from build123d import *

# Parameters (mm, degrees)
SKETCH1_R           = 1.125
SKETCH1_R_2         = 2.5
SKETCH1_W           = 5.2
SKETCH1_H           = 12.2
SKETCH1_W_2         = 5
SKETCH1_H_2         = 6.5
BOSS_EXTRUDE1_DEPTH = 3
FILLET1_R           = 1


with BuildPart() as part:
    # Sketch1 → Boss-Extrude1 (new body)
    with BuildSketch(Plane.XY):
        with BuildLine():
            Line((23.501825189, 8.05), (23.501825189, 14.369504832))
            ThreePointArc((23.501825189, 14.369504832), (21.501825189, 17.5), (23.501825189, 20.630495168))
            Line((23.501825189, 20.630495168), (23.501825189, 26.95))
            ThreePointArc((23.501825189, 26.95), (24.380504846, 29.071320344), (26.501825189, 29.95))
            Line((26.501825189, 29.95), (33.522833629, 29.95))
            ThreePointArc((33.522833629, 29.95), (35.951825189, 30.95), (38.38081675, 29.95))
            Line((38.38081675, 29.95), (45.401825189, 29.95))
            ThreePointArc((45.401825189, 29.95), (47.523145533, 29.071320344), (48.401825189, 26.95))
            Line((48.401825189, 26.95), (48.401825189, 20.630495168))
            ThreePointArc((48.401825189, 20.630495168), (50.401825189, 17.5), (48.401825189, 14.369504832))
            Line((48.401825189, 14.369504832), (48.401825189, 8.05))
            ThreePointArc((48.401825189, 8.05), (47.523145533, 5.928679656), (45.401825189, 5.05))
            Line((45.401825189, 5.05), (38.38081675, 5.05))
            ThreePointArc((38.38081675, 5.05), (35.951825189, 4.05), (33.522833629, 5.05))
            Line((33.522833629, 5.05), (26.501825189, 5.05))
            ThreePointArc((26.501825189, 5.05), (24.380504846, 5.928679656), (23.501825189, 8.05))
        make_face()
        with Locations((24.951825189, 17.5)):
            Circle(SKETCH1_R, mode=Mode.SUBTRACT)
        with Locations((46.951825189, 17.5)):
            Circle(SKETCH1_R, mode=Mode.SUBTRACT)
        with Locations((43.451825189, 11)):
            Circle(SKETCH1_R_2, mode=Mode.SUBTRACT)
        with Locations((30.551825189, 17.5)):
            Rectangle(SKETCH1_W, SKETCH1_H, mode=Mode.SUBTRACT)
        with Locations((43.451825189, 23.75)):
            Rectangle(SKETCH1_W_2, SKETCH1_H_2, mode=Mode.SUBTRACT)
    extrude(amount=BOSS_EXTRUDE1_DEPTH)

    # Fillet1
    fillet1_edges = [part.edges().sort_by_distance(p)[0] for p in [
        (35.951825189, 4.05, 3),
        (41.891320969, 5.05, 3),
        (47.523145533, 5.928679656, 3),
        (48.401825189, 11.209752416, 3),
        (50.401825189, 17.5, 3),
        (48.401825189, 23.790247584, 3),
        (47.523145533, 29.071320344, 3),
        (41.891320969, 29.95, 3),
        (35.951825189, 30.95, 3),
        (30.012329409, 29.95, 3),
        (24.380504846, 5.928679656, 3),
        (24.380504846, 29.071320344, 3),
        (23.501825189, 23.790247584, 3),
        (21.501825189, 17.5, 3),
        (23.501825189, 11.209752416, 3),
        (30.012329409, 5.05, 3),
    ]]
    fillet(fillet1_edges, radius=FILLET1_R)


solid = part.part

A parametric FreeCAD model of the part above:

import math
import FreeCAD as App
import Part
import Sketcher

V = App.Vector


def edges_at(feature, points):
    """Names of the edges that pass closest to the given points."""
    edges = feature.Shape.Edges
    near = lambda p: min(range(len(edges)), key=lambda i: edges[i].distToShape(Part.Vertex(*p))[0])
    return sorted({f"Edge{near(p) + 1}" for p in points})


def add_polygon(sketch, points):
    """Adds a closed chain of lines whose ends are joined by coincident constraints."""
    first, n = sketch.GeometryCount, len(points)
    for a, b in zip(points, points[1:] + points[:1]):
        sketch.addGeometry(Part.LineSegment(App.Vector(*a, 0), App.Vector(*b, 0)), False)
    for i in range(n):
        sketch.addConstraint(Sketcher.Constraint("Coincident", first + i, 2, first + (i + 1) % n, 1))

doc = App.newDocument("Part")
params = doc.addObject("Spreadsheet::Sheet", "Params")
for row, (alias, value) in enumerate([
    ("sketch1_diameter", "5 mm"),
    ("sketch1_radius", "3 mm"),
    ("sketch1_diameter2", "2.25 mm"),
    ("sketch1_width", "5 mm"),
    ("sketch1_radius2", "3.45 mm"),
    ("pad1_length", "3 mm"),
    ("fillet_radius", "1 mm"),
], start=1):
    params.set(f"A{row}", alias)
    params.set(f"B{row}", "=" + value)
    params.setAlias(f"B{row}", alias)

body = doc.addObject("PartDesign::Body", "Body")

sketch1 = body.newObject("Sketcher::SketchObject", "Sketch")
sketch1.AttachmentSupport = (doc.getObject("XY_Plane"), [""])
sketch1.MapMode = "FlatFace"
sketch1.addGeometry(Part.LineSegment(V(23.5, 14.4, 0), V(23.5, 8.1, 0)), False)
sketch1.addGeometry(Part.ArcOfCircle(Part.Circle(V(26.5, 8.1, 0), V(0, 0, 1), 3), math.radians(180), math.radians(270)), False)
sketch1.addGeometry(Part.LineSegment(V(26.5, 5, 0), V(33.5, 5, 0)), False)
sketch1.addGeometry(Part.ArcOfCircle(Part.Circle(V(36, 7.5, 0), V(0, 0, 1), 3.5), math.radians(-135), math.radians(-45)), False)
sketch1.addGeometry(Part.LineSegment(V(38.4, 5, 0), V(45.4, 5, 0)), False)
sketch1.addGeometry(Part.ArcOfCircle(Part.Circle(V(45.4, 8, 0), V(0, 0, 1), 3), math.radians(-90), math.radians(0)), False)
sketch1.addGeometry(Part.LineSegment(V(48.4, 8.1, 0), V(48.4, 14.4, 0)), False)
sketch1.addGeometry(Part.ArcOfCircle(Part.Circle(V(47, 17.5, 0), V(0, 0, 1), 3.4), math.radians(-65), math.radians(65)), False)
sketch1.addGeometry(Part.LineSegment(V(48.4, 20.6, 0), V(48.4, 26.9, 0)), False)
sketch1.addGeometry(Part.ArcOfCircle(Part.Circle(V(45.4, 27, 0), V(0, 0, 1), 3), math.radians(0), math.radians(90)), False)
sketch1.addGeometry(Part.LineSegment(V(45.4, 29.9, 0), V(38.4, 29.9, 0)), False)
sketch1.addGeometry(Part.ArcOfCircle(Part.Circle(V(36, 27.5, 0), V(0, 0, 1), 3.5), math.radians(45), math.radians(135)), False)
sketch1.addGeometry(Part.LineSegment(V(33.5, 29.9, 0), V(26.5, 29.9, 0)), False)
sketch1.addGeometry(Part.ArcOfCircle(Part.Circle(V(26.5, 26.9, 0), V(0, 0, 1), 3), math.radians(90), math.radians(180)), False)
sketch1.addGeometry(Part.LineSegment(V(23.5, 26.9, 0), V(23.5, 20.6, 0)), False)
sketch1.addGeometry(Part.ArcOfCircle(Part.Circle(V(25, 17.5, 0), V(0, 0, 1), 3.4), math.radians(115), math.radians(245)), False)
sketch1.addGeometry(Part.Circle(V(43.5, 11, 0), V(0, 0, 1), 2.5), False)
sketch1.addGeometry(Part.Circle(V(47, 17.5, 0), V(0, 0, 1), 1.1), False)
add_polygon(sketch1, [(28, 11.4), (28, 23.6), (33.2, 23.6), (33.2, 11.4)])
sketch1.addGeometry(Part.Circle(V(25, 17.5, 0), V(0, 0, 1), 1.1), False)
add_polygon(sketch1, [(41, 20.5), (41, 27), (46, 27), (46, 20.5)])
sketch1.addConstraint([
    Sketcher.Constraint("Tangent", 0, 2, 1, 1),
    Sketcher.Constraint("Tangent", 1, 2, 2, 1),
    Sketcher.Constraint("Coincident", 2, 2, 3, 1),
    Sketcher.Constraint("Coincident", 3, 2, 4, 1),
    Sketcher.Constraint("Tangent", 4, 2, 5, 1),
    Sketcher.Constraint("Tangent", 5, 2, 6, 1),
    Sketcher.Constraint("Coincident", 6, 2, 7, 1),
    Sketcher.Constraint("Coincident", 7, 2, 8, 1),
    Sketcher.Constraint("Tangent", 8, 2, 9, 1),
    Sketcher.Constraint("Tangent", 9, 2, 10, 1),
    Sketcher.Constraint("Coincident", 10, 2, 11, 1),
    Sketcher.Constraint("Coincident", 11, 2, 12, 1),
    Sketcher.Constraint("Tangent", 12, 2, 13, 1),
    Sketcher.Constraint("Tangent", 13, 2, 14, 1),
    Sketcher.Constraint("Coincident", 14, 2, 15, 1),
    Sketcher.Constraint("Coincident", 15, 2, 0, 1),
    Sketcher.Constraint("Vertical", 0),
    Sketcher.Constraint("Horizontal", 2),
    Sketcher.Constraint("Horizontal", 4),
    Sketcher.Constraint("Vertical", 6),
    Sketcher.Constraint("Vertical", 8),
    Sketcher.Constraint("Horizontal", 10),
    Sketcher.Constraint("Horizontal", 12),
    Sketcher.Constraint("Vertical", 14),
    Sketcher.Constraint("Vertical", 18),
    Sketcher.Constraint("Horizontal", 19),
    Sketcher.Constraint("Vertical", 20),
    Sketcher.Constraint("Horizontal", 21),
    Sketcher.Constraint("Vertical", 23),
    Sketcher.Constraint("Horizontal", 24),
    Sketcher.Constraint("Vertical", 25),
    Sketcher.Constraint("Horizontal", 26),
    Sketcher.Constraint("Coincident", 17, 3, 7, 3),
    Sketcher.Constraint("Coincident", 22, 3, 15, 3),
    Sketcher.Constraint("Equal", 1, 5),
    Sketcher.Constraint("Equal", 3, 7),
    Sketcher.Constraint("Equal", 5, 9),
    Sketcher.Constraint("Equal", 7, 11),
    Sketcher.Constraint("Equal", 9, 13),
    Sketcher.Constraint("Equal", 11, 15),
    Sketcher.Constraint("Equal", 17, 22),
    Sketcher.Constraint("Horizontal", 1, 3, 5, 3),
    Sketcher.Constraint("Horizontal", 9, 3, 13, 3),
    Sketcher.Constraint("Horizontal", 7, 3, 15, 3),
    Sketcher.Constraint("Horizontal", 7, 2, 14, 2),
    Sketcher.Constraint("Horizontal", 6, 2, 15, 2),
    Sketcher.Constraint("Vertical", 5, 3, 9, 3),
    Sketcher.Constraint("Vertical", 3, 3, 11, 3),
    Sketcher.Constraint("Vertical", 3, 2, 10, 2),
    Sketcher.Constraint("Equal", 2, 4),
    Sketcher.Constraint("Equal", 6, 8),
    Sketcher.Constraint("Diameter", 16, 5.0),
    Sketcher.Constraint("Radius", 1, 3.0),
    Sketcher.Constraint("Diameter", 17, 2.25),
    Sketcher.Constraint("DistanceX", 24, 1, 24, 2, 5.0),
    Sketcher.Constraint("Radius", 3, 3.45),
    Sketcher.Constraint("DistanceX", 19, 1, 19, 2, 5.2),
    Sketcher.Constraint("DistanceY", 18, 1, 18, 2, 12.2),
    Sketcher.Constraint("DistanceY", 23, 1, 23, 2, 6.5),
    Sketcher.Constraint("DistanceY", -1, 1, 16, 3, 11.0),
    Sketcher.Constraint("DistanceY", -1, 1, 23, 2, 27.0),
    Sketcher.Constraint("DistanceX", 3, 3, 7, 3, 11.0),
    Sketcher.Constraint("DistanceY", 3, 3, 7, 3, 10.0),
    Sketcher.Constraint("DistanceX", 22, 3, 18, 2, 3.0),
    Sketcher.Constraint("DistanceX", 11, 3, 23, 2, 5.0),
    Sketcher.Constraint("DistanceY", 17, 3, 25, 2, 3.0),
    Sketcher.Constraint("DistanceY", -1, 1, 18, 2, 23.6),
    Sketcher.Constraint("DistanceX", 1, 3, 5, 3, 18.9),
    Sketcher.Constraint("DistanceY", 5, 3, 9, 3, 18.9),
    Sketcher.Constraint("DistanceX", 16, 3, 7, 3, 3.5),
    Sketcher.Constraint("DistanceX", -1, 1, 1, 3, 26.501825),
])
sketch1.setExpression("Constraints[59]", "Params.sketch1_diameter")
sketch1.setExpression("Constraints[60]", "Params.sketch1_radius")
sketch1.setExpression("Constraints[61]", "Params.sketch1_diameter2")
sketch1.setExpression("Constraints[62]", "Params.sketch1_width")
sketch1.setExpression("Constraints[63]", "Params.sketch1_radius2")
pad1 = body.newObject("PartDesign::Pad", "Pad")
pad1.Profile = sketch1
pad1.setExpression("Length", "Params.pad1_length")
doc.recompute()

fillet = body.newObject("PartDesign::Fillet", "Fillet")
fillet.Base = (pad1, edges_at(pad1, [
    (35.952, 4.05, 3),
    (41.891, 5.05, 3),
    (47.523, 5.929, 3),
    (48.402, 11.21, 3),
    (50.402, 17.5, 3),
    (48.402, 23.79, 3),
    (47.523, 29.071, 3),
    (41.891, 29.95, 3),
    (35.952, 30.95, 3),
    (30.012, 29.95, 3),
    (24.381, 5.929, 3),
    (24.381, 29.071, 3),
    (23.502, 23.79, 3),
    (21.502, 17.5, 3),
    (23.502, 11.21, 3),
    (30.012, 5.05, 3),
]))
fillet.setExpression("Radius", "Params.fillet_radius")

doc.recompute()
